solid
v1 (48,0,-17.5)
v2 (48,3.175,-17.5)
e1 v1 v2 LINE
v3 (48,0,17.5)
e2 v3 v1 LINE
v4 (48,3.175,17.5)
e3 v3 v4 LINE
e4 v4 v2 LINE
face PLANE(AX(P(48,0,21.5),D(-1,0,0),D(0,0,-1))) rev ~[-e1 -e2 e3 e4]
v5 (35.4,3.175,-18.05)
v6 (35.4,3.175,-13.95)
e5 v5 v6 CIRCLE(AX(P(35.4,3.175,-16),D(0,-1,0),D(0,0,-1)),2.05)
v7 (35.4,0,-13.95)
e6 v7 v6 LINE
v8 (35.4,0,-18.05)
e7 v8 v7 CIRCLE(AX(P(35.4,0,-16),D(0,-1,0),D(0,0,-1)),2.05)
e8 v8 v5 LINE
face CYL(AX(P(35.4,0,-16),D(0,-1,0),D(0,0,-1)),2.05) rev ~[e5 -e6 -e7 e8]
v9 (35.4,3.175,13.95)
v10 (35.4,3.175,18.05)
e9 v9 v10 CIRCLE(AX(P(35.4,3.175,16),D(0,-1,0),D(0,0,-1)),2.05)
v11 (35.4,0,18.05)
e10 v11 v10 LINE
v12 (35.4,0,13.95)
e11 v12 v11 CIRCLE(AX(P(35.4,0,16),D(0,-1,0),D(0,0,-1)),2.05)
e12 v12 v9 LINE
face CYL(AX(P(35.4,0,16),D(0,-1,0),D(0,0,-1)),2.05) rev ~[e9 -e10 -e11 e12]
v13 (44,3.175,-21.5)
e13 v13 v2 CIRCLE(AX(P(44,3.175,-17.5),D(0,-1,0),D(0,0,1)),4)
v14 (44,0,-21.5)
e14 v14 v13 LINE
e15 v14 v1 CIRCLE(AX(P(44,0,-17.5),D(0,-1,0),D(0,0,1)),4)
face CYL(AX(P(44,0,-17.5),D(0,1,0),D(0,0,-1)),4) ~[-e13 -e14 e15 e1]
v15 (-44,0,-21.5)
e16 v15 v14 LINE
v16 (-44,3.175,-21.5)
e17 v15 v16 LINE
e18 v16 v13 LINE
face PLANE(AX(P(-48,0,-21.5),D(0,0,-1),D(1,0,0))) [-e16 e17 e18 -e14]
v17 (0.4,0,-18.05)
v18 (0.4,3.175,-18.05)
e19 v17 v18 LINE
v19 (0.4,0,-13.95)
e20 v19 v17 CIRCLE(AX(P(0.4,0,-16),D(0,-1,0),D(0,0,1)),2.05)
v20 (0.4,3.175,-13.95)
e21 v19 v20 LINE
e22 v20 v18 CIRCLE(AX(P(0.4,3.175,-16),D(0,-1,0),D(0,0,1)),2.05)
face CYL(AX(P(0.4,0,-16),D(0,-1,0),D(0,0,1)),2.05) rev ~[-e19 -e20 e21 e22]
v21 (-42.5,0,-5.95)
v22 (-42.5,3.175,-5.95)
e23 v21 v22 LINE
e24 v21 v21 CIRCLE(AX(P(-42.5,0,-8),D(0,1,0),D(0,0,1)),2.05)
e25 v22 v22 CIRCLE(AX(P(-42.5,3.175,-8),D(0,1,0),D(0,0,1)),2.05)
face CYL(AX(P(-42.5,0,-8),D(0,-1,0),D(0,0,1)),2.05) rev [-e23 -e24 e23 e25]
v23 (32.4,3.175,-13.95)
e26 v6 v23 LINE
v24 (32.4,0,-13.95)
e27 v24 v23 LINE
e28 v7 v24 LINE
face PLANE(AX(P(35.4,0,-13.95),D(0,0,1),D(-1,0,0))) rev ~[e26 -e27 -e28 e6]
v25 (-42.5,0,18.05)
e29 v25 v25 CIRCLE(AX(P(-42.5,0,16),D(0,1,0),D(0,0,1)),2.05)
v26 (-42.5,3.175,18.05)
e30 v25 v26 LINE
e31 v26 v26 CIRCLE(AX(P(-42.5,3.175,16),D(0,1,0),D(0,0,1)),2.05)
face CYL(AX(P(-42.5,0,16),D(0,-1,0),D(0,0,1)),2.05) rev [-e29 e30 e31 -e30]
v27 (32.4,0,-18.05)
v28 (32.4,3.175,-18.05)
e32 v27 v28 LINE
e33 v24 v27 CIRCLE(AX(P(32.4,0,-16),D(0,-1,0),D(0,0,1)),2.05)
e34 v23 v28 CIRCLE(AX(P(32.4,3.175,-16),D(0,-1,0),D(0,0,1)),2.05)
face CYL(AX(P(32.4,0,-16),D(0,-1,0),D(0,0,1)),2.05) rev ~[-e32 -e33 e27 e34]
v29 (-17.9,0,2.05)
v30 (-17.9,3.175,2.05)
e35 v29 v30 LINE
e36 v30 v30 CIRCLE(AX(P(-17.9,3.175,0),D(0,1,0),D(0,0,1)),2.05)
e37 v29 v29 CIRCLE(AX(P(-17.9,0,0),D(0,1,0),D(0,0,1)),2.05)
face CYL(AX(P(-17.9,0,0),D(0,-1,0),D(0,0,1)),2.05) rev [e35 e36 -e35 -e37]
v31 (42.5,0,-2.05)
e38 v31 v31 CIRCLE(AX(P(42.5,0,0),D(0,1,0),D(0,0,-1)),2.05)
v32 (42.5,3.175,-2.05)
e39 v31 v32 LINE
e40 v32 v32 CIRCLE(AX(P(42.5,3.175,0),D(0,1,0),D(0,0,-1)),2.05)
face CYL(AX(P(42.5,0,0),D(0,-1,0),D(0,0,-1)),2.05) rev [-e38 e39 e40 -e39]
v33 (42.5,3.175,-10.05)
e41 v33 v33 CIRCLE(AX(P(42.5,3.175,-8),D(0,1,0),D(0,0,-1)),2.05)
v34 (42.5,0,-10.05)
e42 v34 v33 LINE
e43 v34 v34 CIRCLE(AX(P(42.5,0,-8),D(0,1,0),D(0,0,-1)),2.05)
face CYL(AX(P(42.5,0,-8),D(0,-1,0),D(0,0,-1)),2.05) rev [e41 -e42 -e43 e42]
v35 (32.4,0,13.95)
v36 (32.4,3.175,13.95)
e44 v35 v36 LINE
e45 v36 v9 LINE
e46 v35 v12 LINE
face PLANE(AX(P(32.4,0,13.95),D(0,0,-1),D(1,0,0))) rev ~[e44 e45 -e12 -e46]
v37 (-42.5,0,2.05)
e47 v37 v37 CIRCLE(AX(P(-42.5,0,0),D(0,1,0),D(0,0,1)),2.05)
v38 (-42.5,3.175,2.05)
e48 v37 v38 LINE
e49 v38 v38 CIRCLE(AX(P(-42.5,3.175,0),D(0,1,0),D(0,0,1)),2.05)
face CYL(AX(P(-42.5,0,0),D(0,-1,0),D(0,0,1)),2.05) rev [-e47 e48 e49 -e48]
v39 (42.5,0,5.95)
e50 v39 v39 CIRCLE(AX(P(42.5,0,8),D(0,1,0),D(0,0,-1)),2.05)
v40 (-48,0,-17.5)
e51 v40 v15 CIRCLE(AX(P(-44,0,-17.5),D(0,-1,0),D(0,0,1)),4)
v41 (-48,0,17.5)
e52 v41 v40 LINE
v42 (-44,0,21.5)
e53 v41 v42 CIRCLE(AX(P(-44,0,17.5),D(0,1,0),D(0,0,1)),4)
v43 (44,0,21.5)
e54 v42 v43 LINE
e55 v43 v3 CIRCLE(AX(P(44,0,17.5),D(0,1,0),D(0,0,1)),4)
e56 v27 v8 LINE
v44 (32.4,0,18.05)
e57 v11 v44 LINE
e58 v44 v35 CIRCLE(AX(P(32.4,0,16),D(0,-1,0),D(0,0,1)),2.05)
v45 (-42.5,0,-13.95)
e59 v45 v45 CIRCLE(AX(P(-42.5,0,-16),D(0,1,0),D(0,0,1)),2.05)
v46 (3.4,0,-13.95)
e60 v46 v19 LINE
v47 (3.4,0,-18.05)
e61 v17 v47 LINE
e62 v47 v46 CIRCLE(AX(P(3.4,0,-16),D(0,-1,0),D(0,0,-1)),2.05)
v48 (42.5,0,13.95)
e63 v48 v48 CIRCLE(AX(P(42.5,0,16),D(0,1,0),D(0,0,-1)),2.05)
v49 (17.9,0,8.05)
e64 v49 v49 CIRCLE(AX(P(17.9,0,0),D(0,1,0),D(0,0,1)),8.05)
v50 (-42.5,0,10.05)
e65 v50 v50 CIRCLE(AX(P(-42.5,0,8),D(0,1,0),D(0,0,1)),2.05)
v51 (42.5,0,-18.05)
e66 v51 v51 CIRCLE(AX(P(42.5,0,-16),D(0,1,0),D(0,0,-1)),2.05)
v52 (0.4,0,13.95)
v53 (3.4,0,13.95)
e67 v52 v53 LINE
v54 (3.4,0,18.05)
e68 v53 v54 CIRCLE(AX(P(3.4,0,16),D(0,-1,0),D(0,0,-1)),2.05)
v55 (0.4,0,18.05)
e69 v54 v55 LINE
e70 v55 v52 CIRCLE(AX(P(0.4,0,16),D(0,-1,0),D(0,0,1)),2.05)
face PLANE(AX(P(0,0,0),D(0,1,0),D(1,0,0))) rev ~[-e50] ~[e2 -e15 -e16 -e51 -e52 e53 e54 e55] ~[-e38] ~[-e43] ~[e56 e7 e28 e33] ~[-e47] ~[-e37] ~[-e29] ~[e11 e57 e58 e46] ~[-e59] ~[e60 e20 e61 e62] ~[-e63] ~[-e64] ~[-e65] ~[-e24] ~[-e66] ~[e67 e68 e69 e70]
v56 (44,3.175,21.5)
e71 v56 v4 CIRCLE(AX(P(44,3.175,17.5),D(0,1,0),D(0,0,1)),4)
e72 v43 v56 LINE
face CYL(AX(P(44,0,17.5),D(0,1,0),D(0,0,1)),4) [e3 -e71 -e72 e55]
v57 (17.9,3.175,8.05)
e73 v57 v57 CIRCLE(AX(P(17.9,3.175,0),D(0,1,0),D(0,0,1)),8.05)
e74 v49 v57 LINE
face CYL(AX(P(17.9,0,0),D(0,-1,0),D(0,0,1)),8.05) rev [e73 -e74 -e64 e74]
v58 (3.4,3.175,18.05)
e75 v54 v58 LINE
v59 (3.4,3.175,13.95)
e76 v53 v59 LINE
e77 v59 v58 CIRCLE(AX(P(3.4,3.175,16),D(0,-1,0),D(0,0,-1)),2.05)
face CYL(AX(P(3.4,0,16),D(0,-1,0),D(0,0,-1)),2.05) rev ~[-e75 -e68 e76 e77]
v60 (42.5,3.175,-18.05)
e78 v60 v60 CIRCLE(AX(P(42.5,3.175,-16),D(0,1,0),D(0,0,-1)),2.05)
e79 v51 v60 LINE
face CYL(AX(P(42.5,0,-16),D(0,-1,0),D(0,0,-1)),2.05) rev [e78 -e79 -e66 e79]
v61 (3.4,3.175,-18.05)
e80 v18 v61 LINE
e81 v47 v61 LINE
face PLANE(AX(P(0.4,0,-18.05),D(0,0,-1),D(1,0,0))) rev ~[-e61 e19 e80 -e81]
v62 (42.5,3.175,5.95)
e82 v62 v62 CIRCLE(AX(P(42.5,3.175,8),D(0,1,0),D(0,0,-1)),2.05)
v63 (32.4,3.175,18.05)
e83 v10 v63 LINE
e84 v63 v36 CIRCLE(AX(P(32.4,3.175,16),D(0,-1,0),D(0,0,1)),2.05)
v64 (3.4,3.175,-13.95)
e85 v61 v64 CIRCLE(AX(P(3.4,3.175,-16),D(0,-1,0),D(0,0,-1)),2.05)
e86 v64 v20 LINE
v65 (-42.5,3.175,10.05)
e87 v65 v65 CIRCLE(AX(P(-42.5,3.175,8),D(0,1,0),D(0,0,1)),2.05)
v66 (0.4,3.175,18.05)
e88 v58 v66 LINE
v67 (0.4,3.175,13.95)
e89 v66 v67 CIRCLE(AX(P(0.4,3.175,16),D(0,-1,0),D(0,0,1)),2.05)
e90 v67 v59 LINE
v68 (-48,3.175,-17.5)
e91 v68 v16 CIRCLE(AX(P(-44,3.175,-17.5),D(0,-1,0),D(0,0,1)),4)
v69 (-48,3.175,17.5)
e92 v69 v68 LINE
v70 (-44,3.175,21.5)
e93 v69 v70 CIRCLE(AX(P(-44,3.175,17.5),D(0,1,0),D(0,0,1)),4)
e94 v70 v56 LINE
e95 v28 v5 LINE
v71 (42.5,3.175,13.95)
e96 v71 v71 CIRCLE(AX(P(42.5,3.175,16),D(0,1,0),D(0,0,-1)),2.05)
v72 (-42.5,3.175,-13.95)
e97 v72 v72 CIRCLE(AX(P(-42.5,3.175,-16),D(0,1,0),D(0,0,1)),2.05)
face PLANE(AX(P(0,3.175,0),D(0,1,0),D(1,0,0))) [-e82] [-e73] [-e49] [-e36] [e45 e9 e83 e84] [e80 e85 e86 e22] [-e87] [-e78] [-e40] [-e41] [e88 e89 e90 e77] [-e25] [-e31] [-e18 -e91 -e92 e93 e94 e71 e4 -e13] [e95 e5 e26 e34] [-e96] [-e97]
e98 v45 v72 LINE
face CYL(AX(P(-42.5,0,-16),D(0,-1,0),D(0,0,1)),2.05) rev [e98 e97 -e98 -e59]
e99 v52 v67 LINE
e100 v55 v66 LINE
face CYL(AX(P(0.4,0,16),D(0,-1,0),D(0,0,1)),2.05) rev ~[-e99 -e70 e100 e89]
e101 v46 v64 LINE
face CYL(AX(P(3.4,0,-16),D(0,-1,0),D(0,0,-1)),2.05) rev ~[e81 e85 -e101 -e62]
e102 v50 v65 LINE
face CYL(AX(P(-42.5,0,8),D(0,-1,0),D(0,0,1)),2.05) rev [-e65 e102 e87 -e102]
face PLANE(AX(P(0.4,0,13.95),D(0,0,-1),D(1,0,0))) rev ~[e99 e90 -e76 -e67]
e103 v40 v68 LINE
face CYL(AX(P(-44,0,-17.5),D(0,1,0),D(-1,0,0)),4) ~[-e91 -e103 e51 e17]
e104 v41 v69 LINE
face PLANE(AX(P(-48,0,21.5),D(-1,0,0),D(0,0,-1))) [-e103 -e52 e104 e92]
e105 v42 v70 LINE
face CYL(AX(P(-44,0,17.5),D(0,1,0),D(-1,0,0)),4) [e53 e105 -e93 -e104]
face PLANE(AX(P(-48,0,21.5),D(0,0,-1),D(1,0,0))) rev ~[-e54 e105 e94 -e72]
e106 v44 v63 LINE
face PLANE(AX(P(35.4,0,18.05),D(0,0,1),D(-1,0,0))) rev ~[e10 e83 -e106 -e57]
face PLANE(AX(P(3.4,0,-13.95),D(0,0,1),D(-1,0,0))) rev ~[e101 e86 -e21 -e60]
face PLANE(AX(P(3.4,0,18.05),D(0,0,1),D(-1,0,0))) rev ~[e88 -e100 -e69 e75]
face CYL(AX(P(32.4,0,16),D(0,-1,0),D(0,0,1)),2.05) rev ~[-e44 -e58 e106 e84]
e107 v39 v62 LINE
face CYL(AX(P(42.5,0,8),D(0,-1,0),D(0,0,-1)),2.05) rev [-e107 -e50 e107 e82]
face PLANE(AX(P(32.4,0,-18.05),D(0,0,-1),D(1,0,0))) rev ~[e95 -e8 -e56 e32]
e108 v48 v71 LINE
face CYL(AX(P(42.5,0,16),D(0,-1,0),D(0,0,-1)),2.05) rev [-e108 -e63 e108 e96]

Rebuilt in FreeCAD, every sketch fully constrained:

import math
import FreeCAD as App
import Part
import Sketcher
from FreeCAD import Vector


def edges_at(feature, points):
    """Names of the edges that pass closest to the given points."""
    edges = feature.Shape.Edges
    near = lambda p: min(range(len(edges)), key=lambda i: edges[i].distToShape(Part.Vertex(*p))[0])
    return sorted({f"Edge{near(p) + 1}" for p in points})


def add_polygon(sketch, points):
    """Adds a closed chain of lines whose ends are joined by coincident constraints."""
    first, n = sketch.GeometryCount, len(points)
    for a, b in zip(points, points[1:] + points[:1]):
        sketch.addGeometry(Part.LineSegment(App.Vector(*a, 0), App.Vector(*b, 0)), False)
    for i in range(n):
        sketch.addConstraint(Sketcher.Constraint("Coincident", first + i, 2, first + (i + 1) % n, 1))

doc = App.newDocument("Part")
body = doc.addObject("PartDesign::Body", "Body")

sketch1 = doc.addObject("Sketcher::SketchObject", "Sketch")
body.addObject(sketch1)
sketch1.AttachmentSupport = (doc.XZ_Plane, [""])
sketch1.MapMode = "FlatFace"
add_polygon(sketch1, [(-48, -21.5), (-48, 21.5), (48, 21.5), (48, -21.5)])
sketch1.addGeometry(Part.Circle(Vector(-42.5, 16, 0), Vector(0, 0, 1), 2), False)
sketch1.addGeometry(Part.Circle(Vector(-42.5, 8, 0), Vector(0, 0, 1), 2), False)
sketch1.addGeometry(Part.ArcOfCircle(Part.Circle(Vector(0.4, 16, 0), Vector(0, 0, 1), 2), math.radians(90), math.radians(270)), False)
sketch1.addGeometry(Part.LineSegment(Vector(0.4, 13.9, 0), Vector(3.4, 13.9, 0)), False)
sketch1.addGeometry(Part.ArcOfCircle(Part.Circle(Vector(3.4, 16, 0), Vector(0, 0, 1), 2), math.radians(-90), math.radians(90)), False)
sketch1.addGeometry(Part.LineSegment(Vector(3.4, 18.1, 0), Vector(0.4, 18.1, 0)), False)
sketch1.addGeometry(Part.ArcOfCircle(Part.Circle(Vector(35.4, 16, 0), Vector(0, 0, 1), 2), math.radians(-90), math.radians(90)), False)
sketch1.addGeometry(Part.LineSegment(Vector(35.4, 18.1, 0), Vector(32.4, 18.1, 0)), False)
sketch1.addGeometry(Part.ArcOfCircle(Part.Circle(Vector(32.4, 16, 0), Vector(0, 0, 1), 2), math.radians(90), math.radians(270)), False)
sketch1.addGeometry(Part.LineSegment(Vector(32.4, 13.9, 0), Vector(35.4, 13.9, 0)), False)
sketch1.addGeometry(Part.Circle(Vector(42.5, 16, 0), Vector(0, 0, 1), 2), False)
sketch1.addGeometry(Part.Circle(Vector(42.5, 8, 0), Vector(0, 0, 1), 2), False)
sketch1.addGeometry(Part.Circle(Vector(-42.5, 0, 0), Vector(0, 0, 1), 2), False)
sketch1.addGeometry(Part.Circle(Vector(-42.5, -8, 0), Vector(0, 0, 1), 2), False)
sketch1.addGeometry(Part.Circle(Vector(-17.9, 0, 0), Vector(0, 0, 1), 2), False)
sketch1.addGeometry(Part.Circle(Vector(-42.5, -16, 0), Vector(0, 0, 1), 2), False)
sketch1.addGeometry(Part.Circle(Vector(17.9, 0, 0), Vector(0, 0, 1), 8.1), False)
sketch1.addGeometry(Part.Circle(Vector(42.5, 0, 0), Vector(0, 0, 1), 2), False)
sketch1.addGeometry(Part.Circle(Vector(42.5, -8, 0), Vector(0, 0, 1), 2), False)
sketch1.addGeometry(Part.ArcOfCircle(Part.Circle(Vector(0.4, -16, 0), Vector(0, 0, 1), 2), math.radians(90), math.radians(270)), False)
sketch1.addGeometry(Part.LineSegment(Vector(0.4, -18.1, 0), Vector(3.4, -18.1, 0)), False)
sketch1.addGeometry(Part.ArcOfCircle(Part.Circle(Vector(3.4, -16, 0), Vector(0, 0, 1), 2), math.radians(-90), math.radians(90)), False)
sketch1.addGeometry(Part.LineSegment(Vector(3.4, -13.9, 0), Vector(0.4, -13.9, 0)), False)
sketch1.addGeometry(Part.ArcOfCircle(Part.Circle(Vector(35.4, -16, 0), Vector(0, 0, 1), 2), math.radians(-90), math.radians(90)), False)
sketch1.addGeometry(Part.LineSegment(Vector(35.4, -13.9, 0), Vector(32.4, -13.9, 0)), False)
sketch1.addGeometry(Part.ArcOfCircle(Part.Circle(Vector(32.4, -16, 0), Vector(0, 0, 1), 2), math.radians(90), math.radians(270)), False)
sketch1.addGeometry(Part.LineSegment(Vector(32.4, -18.1, 0), Vector(35.4, -18.1, 0)), False)
sketch1.addGeometry(Part.Circle(Vector(42.5, -16, 0), Vector(0, 0, 1), 2), False)
sketch1.addConstraint(Sketcher.Constraint("Tangent", 6, 2, 7, 1))
sketch1.addConstraint(Sketcher.Constraint("Tangent", 7, 2, 8, 1))
sketch1.addConstraint(Sketcher.Constraint("Tangent", 8, 2, 9, 1))
sketch1.addConstraint(Sketcher.Constraint("Tangent", 9, 2, 6, 1))
sketch1.addConstraint(Sketcher.Constraint("Tangent", 10, 2, 11, 1))
sketch1.addConstraint(Sketcher.Constraint("Tangent", 11, 2, 12, 1))
sketch1.addConstraint(Sketcher.Constraint("Tangent", 12, 2, 13, 1))
sketch1.addConstraint(Sketcher.Constraint("Tangent", 13, 2, 10, 1))
sketch1.addConstraint(Sketcher.Constraint("Tangent", 23, 2, 24, 1))
sketch1.addConstraint(Sketcher.Constraint("Tangent", 24, 2, 25, 1))
sketch1.addConstraint(Sketcher.Constraint("Tangent", 25, 2, 26, 1))
sketch1.addConstraint(Sketcher.Constraint("Tangent", 26, 2, 23, 1))
sketch1.addConstraint(Sketcher.Constraint("Tangent", 27, 2, 28, 1))
sketch1.addConstraint(Sketcher.Constraint("Tangent", 28, 2, 29, 1))
sketch1.addConstraint(Sketcher.Constraint("Tangent", 29, 2, 30, 1))
sketch1.addConstraint(Sketcher.Constraint("Tangent", 30, 2, 27, 1))
sketch1.addConstraint(Sketcher.Constraint("Vertical", 0))
sketch1.addConstraint(Sketcher.Constraint("Horizontal", 1))
sketch1.addConstraint(Sketcher.Constraint("Vertical", 2))
sketch1.addConstraint(Sketcher.Constraint("Horizontal", 3))
sketch1.addConstraint(Sketcher.Constraint("Horizontal", 7))
sketch1.addConstraint(Sketcher.Constraint("Horizontal", 9))
sketch1.addConstraint(Sketcher.Constraint("Horizontal", 11))
sketch1.addConstraint(Sketcher.Constraint("Horizontal", 13))
sketch1.addConstraint(Sketcher.Constraint("Horizontal", 24))
sketch1.addConstraint(Sketcher.Constraint("Horizontal", 26))
sketch1.addConstraint(Sketcher.Constraint("Horizontal", 28))
sketch1.addConstraint(Sketcher.Constraint("Horizontal", 30))
sketch1.addConstraint(Sketcher.Constraint("Equal", 4, 5))
sketch1.addConstraint(Sketcher.Constraint("Equal", 5, 6))
sketch1.addConstraint(Sketcher.Constraint("Equal", 8, 10))
sketch1.addConstraint(Sketcher.Constraint("Equal", 12, 14))
sketch1.addConstraint(Sketcher.Constraint("Equal", 14, 15))
sketch1.addConstraint(Sketcher.Constraint("Equal", 15, 16))
sketch1.addConstraint(Sketcher.Constraint("Equal", 16, 17))
sketch1.addConstraint(Sketcher.Constraint("Equal", 17, 18))
sketch1.addConstraint(Sketcher.Constraint("Equal", 18, 19))
sketch1.addConstraint(Sketcher.Constraint("Equal", 19, 21))
sketch1.addConstraint(Sketcher.Constraint("Equal", 21, 22))
sketch1.addConstraint(Sketcher.Constraint("Equal", 22, 23))
sketch1.addConstraint(Sketcher.Constraint("Equal", 25, 27))
sketch1.addConstraint(Sketcher.Constraint("Equal", 29, 31))
sketch1.addConstraint(Sketcher.Constraint("Symmetric", 15, 3, 17, 3, -1, 1))
sketch1.addConstraint(Sketcher.Constraint("Symmetric", 14, 3, 19, 3, -1, 1))
sketch1.addConstraint(Sketcher.Constraint("Symmetric", 18, 3, 20, 3, -1, 1))
sketch1.addConstraint(Sketcher.Constraint("Symmetric", 16, 3, 21, 3, -1, 1))
sketch1.addConstraint(Sketcher.Constraint("Symmetric", 5, 3, 22, 3, -1, 1))
sketch1.addConstraint(Sketcher.Constraint("Symmetric", 4, 3, 31, 3, -1, 1))
sketch1.addConstraint(Sketcher.Constraint("Symmetric", 0, 2, 2, 2, -1, 1))
sketch1.addConstraint(Sketcher.Constraint("Symmetric", 4, 3, 14, 3, -2))
sketch1.addConstraint(Sketcher.Constraint("Symmetric", 5, 3, 15, 3, -2))
sketch1.addConstraint(Sketcher.Constraint("Symmetric", 6, 3, 23, 3, -1))
sketch1.addConstraint(Sketcher.Constraint("Symmetric", 10, 3, 27, 3, -1))
sketch1.addConstraint(Sketcher.Constraint("PointOnObject", 16, 3, -1))
sketch1.addConstraint(Sketcher.Constraint("PointOnObject", 18, 3, -1))
sketch1.addConstraint(Sketcher.Constraint("Horizontal", 4, 3, 6, 3))
sketch1.addConstraint(Sketcher.Constraint("Horizontal", 8, 3, 10, 3))
sketch1.addConstraint(Sketcher.Constraint("Vertical", 4, 3, 5, 3))
sketch1.addConstraint(Sketcher.Constraint("Vertical", 5, 3, 16, 3))
sketch1.addConstraint(Sketcher.Constraint("Vertical", 8, 3, 25, 3))
sketch1.addConstraint(Sketcher.Constraint("Vertical", 12, 3, 29, 3))
sketch1.addConstraint(Sketcher.Constraint("Equal", 9, 11))
sketch1.addConstraint(Sketcher.Constraint("Diameter", 4, 4.1))
sketch1.addConstraint(Sketcher.Constraint("Diameter", 20, 16.1))
sketch1.addConstraint(Sketcher.Constraint("DistanceX", 1, 1, 1, 2, 96.0))
sketch1.addConstraint(Sketcher.Constraint("DistanceX", 7, 1, 7, 2, 3.0))
sketch1.addConstraint(Sketcher.Constraint("DistanceY", 0, 1, 0, 2, 43.0))
sketch1.addConstraint(Sketcher.Constraint("DistanceY", -1, 1, 4, 3, 16.0))
sketch1.addConstraint(Sketcher.Constraint("DistanceY", -1, 1, 5, 3, 8.0))
sketch1.addConstraint(Sketcher.Constraint("DistanceX", 8, 3, 10, 3, 32.0))
sketch1.addConstraint(Sketcher.Constraint("DistanceX", 4, 3, 14, 3, 85.0))
sketch1.addConstraint(Sketcher.Constraint("DistanceX", -1, 1, 6, 3, 0.4))
sketch1.addConstraint(Sketcher.Constraint("DistanceX", 18, 3, -1, 1, 17.9))
pad1 = doc.addObject("PartDesign::Pad", "Pad")
body.addObject(pad1)
pad1.Profile = sketch1
pad1.Length = 3.175
pad1.Reversed = True
doc.recompute()

fillet = doc.addObject("PartDesign::Fillet", "Fillet")
body.addObject(fillet)
fillet.Base = (pad1, edges_at(pad1, [
    (-48, 1.587, -21.5),
    (48, 1.587, -21.5),
    (48, 1.587, 21.5),
    (-48, 1.587, 21.5),
]))
fillet.Radius = 4

doc.recompute()
